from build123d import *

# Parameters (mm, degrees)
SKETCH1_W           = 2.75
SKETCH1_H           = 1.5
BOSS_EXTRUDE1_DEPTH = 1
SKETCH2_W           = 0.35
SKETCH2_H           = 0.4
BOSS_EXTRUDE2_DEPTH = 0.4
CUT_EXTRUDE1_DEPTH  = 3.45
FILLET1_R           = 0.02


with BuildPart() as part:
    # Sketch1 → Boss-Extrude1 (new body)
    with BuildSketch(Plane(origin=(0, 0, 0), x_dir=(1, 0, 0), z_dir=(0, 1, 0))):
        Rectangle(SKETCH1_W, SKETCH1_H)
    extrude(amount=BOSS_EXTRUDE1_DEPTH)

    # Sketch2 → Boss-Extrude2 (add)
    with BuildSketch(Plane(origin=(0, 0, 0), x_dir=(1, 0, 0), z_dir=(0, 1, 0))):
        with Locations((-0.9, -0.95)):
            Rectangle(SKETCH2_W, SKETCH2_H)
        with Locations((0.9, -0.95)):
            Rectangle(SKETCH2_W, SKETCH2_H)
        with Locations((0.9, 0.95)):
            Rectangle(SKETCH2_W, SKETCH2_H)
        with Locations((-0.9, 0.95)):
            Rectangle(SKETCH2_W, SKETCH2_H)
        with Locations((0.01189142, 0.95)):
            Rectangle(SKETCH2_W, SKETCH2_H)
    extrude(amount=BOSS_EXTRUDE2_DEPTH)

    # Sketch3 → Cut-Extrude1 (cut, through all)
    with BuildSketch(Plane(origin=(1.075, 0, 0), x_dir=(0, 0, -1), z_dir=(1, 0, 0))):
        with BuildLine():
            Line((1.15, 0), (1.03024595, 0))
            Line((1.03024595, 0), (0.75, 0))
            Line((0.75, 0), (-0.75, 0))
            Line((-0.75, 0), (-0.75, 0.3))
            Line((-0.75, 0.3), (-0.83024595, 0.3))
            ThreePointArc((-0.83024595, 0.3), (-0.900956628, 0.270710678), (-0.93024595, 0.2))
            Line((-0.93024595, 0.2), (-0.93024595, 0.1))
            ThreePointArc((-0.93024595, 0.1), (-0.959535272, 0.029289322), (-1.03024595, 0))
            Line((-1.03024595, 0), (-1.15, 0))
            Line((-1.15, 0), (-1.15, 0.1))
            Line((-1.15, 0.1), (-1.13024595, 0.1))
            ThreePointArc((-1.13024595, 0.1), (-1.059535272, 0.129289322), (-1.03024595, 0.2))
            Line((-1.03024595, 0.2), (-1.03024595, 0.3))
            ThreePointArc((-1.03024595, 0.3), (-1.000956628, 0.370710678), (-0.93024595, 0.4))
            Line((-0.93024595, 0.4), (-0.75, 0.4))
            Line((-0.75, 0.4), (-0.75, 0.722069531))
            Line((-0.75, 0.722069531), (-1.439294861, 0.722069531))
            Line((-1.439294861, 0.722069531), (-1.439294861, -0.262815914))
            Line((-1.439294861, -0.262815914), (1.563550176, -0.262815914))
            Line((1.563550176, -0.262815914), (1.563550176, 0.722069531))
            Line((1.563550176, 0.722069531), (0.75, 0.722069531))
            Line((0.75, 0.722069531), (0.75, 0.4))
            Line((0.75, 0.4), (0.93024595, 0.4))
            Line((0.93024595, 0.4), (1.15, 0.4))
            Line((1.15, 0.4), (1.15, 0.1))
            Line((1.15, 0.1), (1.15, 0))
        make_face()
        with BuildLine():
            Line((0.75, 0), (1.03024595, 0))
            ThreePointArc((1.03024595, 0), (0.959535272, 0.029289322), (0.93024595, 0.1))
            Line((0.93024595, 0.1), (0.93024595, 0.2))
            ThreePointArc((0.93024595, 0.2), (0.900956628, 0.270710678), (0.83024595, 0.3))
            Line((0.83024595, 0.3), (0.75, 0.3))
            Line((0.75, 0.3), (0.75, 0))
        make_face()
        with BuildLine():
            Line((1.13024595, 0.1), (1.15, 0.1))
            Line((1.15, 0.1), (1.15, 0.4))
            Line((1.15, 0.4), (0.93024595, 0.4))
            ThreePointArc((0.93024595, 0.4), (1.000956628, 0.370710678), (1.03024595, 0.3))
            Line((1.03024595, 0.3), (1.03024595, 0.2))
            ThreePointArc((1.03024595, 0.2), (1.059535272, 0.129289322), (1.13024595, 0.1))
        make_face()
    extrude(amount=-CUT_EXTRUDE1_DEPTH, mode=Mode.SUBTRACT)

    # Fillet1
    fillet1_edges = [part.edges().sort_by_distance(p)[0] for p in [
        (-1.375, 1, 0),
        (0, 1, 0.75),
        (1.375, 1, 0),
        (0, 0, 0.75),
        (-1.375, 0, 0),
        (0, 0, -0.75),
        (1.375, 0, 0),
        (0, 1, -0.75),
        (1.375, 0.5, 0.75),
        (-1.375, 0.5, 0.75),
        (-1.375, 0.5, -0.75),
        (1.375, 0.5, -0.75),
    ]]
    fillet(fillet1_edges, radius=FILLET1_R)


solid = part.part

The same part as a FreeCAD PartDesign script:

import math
import FreeCAD as App
import Part
import Sketcher
from FreeCAD import Vector


def edges_at(feature, points):
    """Names of the edges that pass closest to the given points."""
    edges = feature.Shape.Edges
    near = lambda p: min(range(len(edges)), key=lambda i: edges[i].distToShape(Part.Vertex(*p))[0])
    return sorted({f"Edge{near(p) + 1}" for p in points})


def add_polygon(sketch, points):
    """Adds a closed chain of lines whose ends are joined by coincident constraints."""
    first, n = sketch.GeometryCount, len(points)
    for a, b in zip(points, points[1:] + points[:1]):
        sketch.addGeometry(Part.LineSegment(App.Vector(*a, 0), App.Vector(*b, 0)), False)
    for i in range(n):
        sketch.addConstraint(Sketcher.Constraint("Coincident", first + i, 2, first + (i + 1) % n, 1))

doc = App.newDocument("Part")
body = doc.addObject("PartDesign::Body", "Body")

sketch1 = body.newObject("Sketcher::SketchObject", "Sketch")
sketch1.AttachmentSupport = (doc.getObject("XZ_Plane"), [""])
sketch1.MapMode = "FlatFace"
add_polygon(sketch1, [(-1.4, -0.8), (-1.4, 0.8), (1.4, 0.8), (1.4, -0.8)])
sketch1.addConstraint([
    Sketcher.Constraint("Vertical", 0),
    Sketcher.Constraint("Horizontal", 1),
    Sketcher.Constraint("Vertical", 2),
    Sketcher.Constraint("Horizontal", 3),
    Sketcher.Constraint("Symmetric", 0, 2, 2, 2, -1, 1),
    Sketcher.Constraint("DistanceY", 0, 1, 0, 2, 1.5),
    Sketcher.Constraint("DistanceX", 1, 1, 1, 2, 2.75),
])
pad1 = body.newObject("PartDesign::Pad", "Pad")
pad1.Profile = sketch1
pad1.Length = 1
pad1.Reversed = True

sketch2 = body.newObject("Sketcher::SketchObject", "Sketch001")
sketch2.AttachmentSupport = (doc.getObject("XZ_Plane"), [""])
sketch2.MapMode = "FlatFace"
add_polygon(sketch2, [(-1.07, 0.75), (-1.07, 1.15), (-0.72, 1.15), (-0.72, 0.75)])
add_polygon(sketch2, [(0.72, 0.75), (0.72, 1.15), (1.07, 1.15), (1.07, 0.75)])
add_polygon(sketch2, [(0.72, -1.15), (0.72, -0.75), (1.07, -0.75), (1.07, -1.15)])
add_polygon(sketch2, [(-1.07, -1.15), (-1.07, -0.75), (-0.72, -0.75), (-0.72, -1.15)])
add_polygon(sketch2, [(-0.16, -1.15), (-0.16, -0.75), (0.19, -0.75), (0.19, -1.15)])
sketch2.addConstraint([
    Sketcher.Constraint("Vertical", 0),
    Sketcher.Constraint("Horizontal", 1),
    Sketcher.Constraint("Vertical", 2),
    Sketcher.Constraint("Horizontal", 3),
    Sketcher.Constraint("Vertical", 4),
    Sketcher.Constraint("Horizontal", 5),
    Sketcher.Constraint("Vertical", 6),
    Sketcher.Constraint("Horizontal", 7),
    Sketcher.Constraint("Vertical", 8),
    Sketcher.Constraint("Horizontal", 9),
    Sketcher.Constraint("Vertical", 10),
    Sketcher.Constraint("Horizontal", 11),
    Sketcher.Constraint("Vertical", 12),
    Sketcher.Constraint("Horizontal", 13),
    Sketcher.Constraint("Vertical", 14),
    Sketcher.Constraint("Horizontal", 15),
    Sketcher.Constraint("Vertical", 16),
    Sketcher.Constraint("Horizontal", 17),
    Sketcher.Constraint("Vertical", 18),
    Sketcher.Constraint("Horizontal", 19),
    Sketcher.Constraint("Symmetric", 2, 2, 8, 2, -1, 1),
    Sketcher.Constraint("Symmetric", 0, 2, 10, 2, -1, 1),
    Sketcher.Constraint("Symmetric", 6, 2, 12, 2, -1, 1),
    Sketcher.Constraint("Symmetric", 4, 2, 14, 2, -1, 1),
    Sketcher.Constraint("Symmetric", 1, 2, 4, 2, -2),
    Sketcher.Constraint("Symmetric", 3, 2, 6, 2, -2),
    Sketcher.Constraint("Horizontal", 13, 2, 16, 2),
    Sketcher.Constraint("Horizontal", 15, 2, 18, 2),
    Sketcher.Constraint("Equal", 15, 17),
    Sketcher.Constraint("DistanceY", 0, 1, 0, 2, 0.4),
    Sketcher.Constraint("DistanceX", 1, 1, 1, 2, 0.35),
    Sketcher.Constraint("DistanceX", 0, 2, 4, 2, 1.8),
    Sketcher.Constraint("DistanceY", 8, 2, 7, 2, 1.5),
    Sketcher.Constraint("DistanceX", 16, 2, -1, 1, 0.163109),
])
pad2 = body.newObject("PartDesign::Pad", "Pad001")
pad2.Profile = sketch2
pad2.Length = 0.4
pad2.Reversed = True

sketch3 = body.newObject("Sketcher::SketchObject", "Sketch002")
sketch3.AttachmentSupport = (doc.getObject("YZ_Plane"), [""])
sketch3.MapMode = "FlatFace"
sketch3.AttachmentOffset = App.Placement(Vector(0, 0, 1.075), App.Rotation())
sketch3.addGeometry([
    Part.LineSegment(Vector(0, -1.15, 0), Vector(0, -1.03, 0)),
    Part.ArcOfCircle(Part.Circle(Vector(0.1, -1.03, 0), Vector(0, 0, 1), 0.1), math.radians(90), math.radians(180)),
    Part.LineSegment(Vector(0.1, -0.93, 0), Vector(0.2, -0.93, 0)),
    Part.ArcOfCircle(Part.Circle(Vector(0.2, -0.83, 0), Vector(0, 0, 1), 0.1), math.radians(-90), math.radians(0)),
    Part.LineSegment(Vector(0.3, -0.83, 0), Vector(0.3, -0.75, 0)),
    Part.LineSegment(Vector(0.3, -0.75, 0), Vector(0, -0.75, 0)),
    Part.LineSegment(Vector(0, -0.75, 0), Vector(0, 0.75, 0)),
    Part.LineSegment(Vector(0, 0.75, 0), Vector(0.3, 0.75, 0)),
    Part.LineSegment(Vector(0.3, 0.75, 0), Vector(0.3, 0.83, 0)),
    Part.ArcOfCircle(Part.Circle(Vector(0.2, 0.83, 0), Vector(0, 0, 1), 0.1), math.radians(0), math.radians(90)),
    Part.LineSegment(Vector(0.2, 0.93, 0), Vector(0.1, 0.93, 0)),
    Part.ArcOfCircle(Part.Circle(Vector(0.1, 1.03, 0), Vector(0, 0, 1), 0.1), math.radians(180), math.radians(270)),
    Part.LineSegment(Vector(0, 1.03, 0), Vector(0, 1.15, 0)),
    Part.LineSegment(Vector(0, 1.15, 0), Vector(0.1, 1.15, 0)),
    Part.LineSegment(Vector(0.1, 1.15, 0), Vector(0.1, 1.13, 0)),
    Part.ArcOfCircle(Part.Circle(Vector(0.2, 1.13, 0), Vector(0, 0, 1), 0.1), math.radians(180), math.radians(270)),
    Part.LineSegment(Vector(0.2, 1.03, 0), Vector(0.3, 1.03, 0)),
    Part.ArcOfCircle(Part.Circle(Vector(0.3, 0.93, 0), Vector(0, 0, 1), 0.1), math.radians(0), math.radians(90)),
    Part.LineSegment(Vector(0.4, 0.93, 0), Vector(0.4, 0.75, 0)),
    Part.LineSegment(Vector(0.4, 0.75, 0), Vector(0.722, 0.75, 0)),
    Part.LineSegment(Vector(0.722, 0.75, 0), Vector(0.722, 1.439, 0)),
    Part.LineSegment(Vector(0.722, 1.439, 0), Vector(-0.263, 1.439, 0)),
    Part.LineSegment(Vector(-0.263, 1.439, 0), Vector(-0.263, -1.564, 0)),
    Part.LineSegment(Vector(-0.263, -1.564, 0), Vector(0.722, -1.564, 0)),
    Part.LineSegment(Vector(0.722, -1.564, 0), Vector(0.722, -0.75, 0)),
    Part.LineSegment(Vector(0.722, -0.75, 0), Vector(0.4, -0.75, 0)),
    Part.LineSegment(Vector(0.4, -0.75, 0), Vector(0.4, -0.93, 0)),
    Part.ArcOfCircle(Part.Circle(Vector(0.3, -0.93, 0), Vector(0, 0, 1), 0.1), math.radians(-90), math.radians(0)),
    Part.LineSegment(Vector(0.3, -1.03, 0), Vector(0.2, -1.03, 0)),
    Part.ArcOfCircle(Part.Circle(Vector(0.2, -1.13, 0), Vector(0, 0, 1), 0.1), math.radians(90), math.radians(180)),
    Part.LineSegment(Vector(0.1, -1.13, 0), Vector(0.1, -1.15, 0)),
    Part.LineSegment(Vector(0.1, -1.15, 0), Vector(0, -1.15, 0)),
], False)
sketch3.addConstraint([
    Sketcher.Constraint("Tangent", 0, 2, 1, 2),
    Sketcher.Constraint("Tangent", 1, 1, 2, 1),
    Sketcher.Constraint("Tangent", 2, 2, 3, 1),
    Sketcher.Constraint("Tangent", 3, 2, 4, 1),
    Sketcher.Constraint("Coincident", 4, 2, 5, 1),
    Sketcher.Constraint("Coincident", 5, 2, 6, 1),
    Sketcher.Constraint("Coincident", 6, 2, 7, 1),
    Sketcher.Constraint("Coincident", 7, 2, 8, 1),
    Sketcher.Constraint("Tangent", 8, 2, 9, 1),
    Sketcher.Constraint("Tangent", 9, 2, 10, 1),
    Sketcher.Constraint("Tangent", 10, 2, 11, 2),
    Sketcher.Constraint("Tangent", 11, 1, 12, 1),
    Sketcher.Constraint("Coincident", 12, 2, 13, 1),
    Sketcher.Constraint("Coincident", 13, 2, 14, 1),
    Sketcher.Constraint("Tangent", 14, 2, 15, 1),
    Sketcher.Constraint("Tangent", 15, 2, 16, 1),
    Sketcher.Constraint("Tangent", 16, 2, 17, 2),
    Sketcher.Constraint("Tangent", 17, 1, 18, 1),
    Sketcher.Constraint("Coincident", 18, 2, 19, 1),
    Sketcher.Constraint("Coincident", 19, 2, 20, 1),
    Sketcher.Constraint("Coincident", 20, 2, 21, 1),
    Sketcher.Constraint("Coincident", 21, 2, 22, 1),
    Sketcher.Constraint("Coincident", 22, 2, 23, 1),
    Sketcher.Constraint("Coincident", 23, 2, 24, 1),
    Sketcher.Constraint("Coincident", 24, 2, 25, 1),
    Sketcher.Constraint("Coincident", 25, 2, 26, 1),
    Sketcher.Constraint("Tangent", 26, 2, 27, 2),
    Sketcher.Constraint("Tangent", 27, 1, 28, 1),
    Sketcher.Constraint("Tangent", 28, 2, 29, 1),
    Sketcher.Constraint("Tangent", 29, 2, 30, 1),
    Sketcher.Constraint("Coincident", 30, 2, 31, 1),
    Sketcher.Constraint("Coincident", 31, 2, 0, 1),
    Sketcher.Constraint("Vertical", 0),
    Sketcher.Constraint("Horizontal", 2),
    Sketcher.Constraint("Vertical", 4),
    Sketcher.Constraint("Horizontal", 5),
    Sketcher.Constraint("Vertical", 6),
    Sketcher.Constraint("Horizontal", 7),
    Sketcher.Constraint("Vertical", 8),
    Sketcher.Constraint("Horizontal", 10),
    Sketcher.Constraint("Vertical", 12),
    Sketcher.Constraint("Horizontal", 13),
    Sketcher.Constraint("Vertical", 14),
    Sketcher.Constraint("Horizontal", 16),
    Sketcher.Constraint("Vertical", 18),
    Sketcher.Constraint("Horizontal", 19),
    Sketcher.Constraint("Vertical", 20),
    Sketcher.Constraint("Horizontal", 21),
    Sketcher.Constraint("Vertical", 22),
    Sketcher.Constraint("Horizontal", 23),
    Sketcher.Constraint("Vertical", 24),
    Sketcher.Constraint("Horizontal", 25),
    Sketcher.Constraint("Vertical", 26),
    Sketcher.Constraint("Horizontal", 28),
    Sketcher.Constraint("Vertical", 30),
    Sketcher.Constraint("Horizontal", 31),
    Sketcher.Constraint("Equal", 1, 3),
    Sketcher.Constraint("Equal", 3, 9),
    Sketcher.Constraint("Equal", 9, 11),
    Sketcher.Constraint("Equal", 11, 15),
    Sketcher.Constraint("Equal", 15, 17),
    Sketcher.Constraint("Equal", 17, 27),
    Sketcher.Constraint("Equal", 27, 29),
    Sketcher.Constraint("Symmetric", 5, 2, 6, 2, -1, 1),
    Sketcher.Constraint("Symmetric", 0, 2, 11, 1, -1, 1),
    Sketcher.Constraint("Symmetric", 17, 3, 27, 3, -1),
    Sketcher.Constraint("Symmetric", 19, 2, 24, 2, -1),
    Sketcher.Constraint("Symmetric", 13, 2, 30, 2, -1),
    Sketcher.Constraint("PointOnObject", 0, 2, -2),
    Sketcher.Constraint("Horizontal", 27, 3, 1, 1),
    Sketcher.Constraint("Horizontal", 7, 2, 18, 2),
    Sketcher.Constraint("Vertical", 3, 3, 9, 3),
    Sketcher.Constraint("Vertical", 9, 3, 15, 3),
    Sketcher.Constraint("Vertical", 27, 3, 3, 2),
    Sketcher.Constraint("Vertical", 10, 2, 13, 2),
    Sketcher.Constraint("Radius", 1, 0.1),
    Sketcher.Constraint("DistanceY", 6, 1, 6, 2, 1.5),
    Sketcher.Constraint("DistanceY", -1, 1, 12, 2, 1.15),
    Sketcher.Constraint("DistanceX", 19, 1, 19, 2, 0.32207),
    Sketcher.Constraint("DistanceY", 24, 1, 24, 2, 0.81355),
    Sketcher.Constraint("DistanceX", 21, 2, 21, 1, 0.984885),
    Sketcher.Constraint("DistanceY", 0, 1, 0, 2, 0.119754),
    Sketcher.Constraint("DistanceY", 20, 1, 20, 2, 0.689295),
])
pocket1 = body.newObject("PartDesign::Pocket", "Pocket")
pocket1.Profile = sketch3
pocket1.Type = "ThroughAll"
doc.recompute()

fillet = body.newObject("PartDesign::Fillet", "Fillet")
fillet.Base = (pocket1, edges_at(pocket1, [
    (-1.375, 1, 0),
    (0, 1, 0.75),
    (1.375, 1, 0),
    (0, 0, 0.75),
    (-1.375, 0, 0),
    (0, 0, -0.75),
    (1.375, 0, 0),
    (0, 1, -0.75),
    (1.375, 0.5, 0.75),
    (-1.375, 0.5, 0.75),
    (-1.375, 0.5, -0.75),
    (1.375, 0.5, -0.75),
]))
fillet.Radius = 0.02

doc.recompute()
